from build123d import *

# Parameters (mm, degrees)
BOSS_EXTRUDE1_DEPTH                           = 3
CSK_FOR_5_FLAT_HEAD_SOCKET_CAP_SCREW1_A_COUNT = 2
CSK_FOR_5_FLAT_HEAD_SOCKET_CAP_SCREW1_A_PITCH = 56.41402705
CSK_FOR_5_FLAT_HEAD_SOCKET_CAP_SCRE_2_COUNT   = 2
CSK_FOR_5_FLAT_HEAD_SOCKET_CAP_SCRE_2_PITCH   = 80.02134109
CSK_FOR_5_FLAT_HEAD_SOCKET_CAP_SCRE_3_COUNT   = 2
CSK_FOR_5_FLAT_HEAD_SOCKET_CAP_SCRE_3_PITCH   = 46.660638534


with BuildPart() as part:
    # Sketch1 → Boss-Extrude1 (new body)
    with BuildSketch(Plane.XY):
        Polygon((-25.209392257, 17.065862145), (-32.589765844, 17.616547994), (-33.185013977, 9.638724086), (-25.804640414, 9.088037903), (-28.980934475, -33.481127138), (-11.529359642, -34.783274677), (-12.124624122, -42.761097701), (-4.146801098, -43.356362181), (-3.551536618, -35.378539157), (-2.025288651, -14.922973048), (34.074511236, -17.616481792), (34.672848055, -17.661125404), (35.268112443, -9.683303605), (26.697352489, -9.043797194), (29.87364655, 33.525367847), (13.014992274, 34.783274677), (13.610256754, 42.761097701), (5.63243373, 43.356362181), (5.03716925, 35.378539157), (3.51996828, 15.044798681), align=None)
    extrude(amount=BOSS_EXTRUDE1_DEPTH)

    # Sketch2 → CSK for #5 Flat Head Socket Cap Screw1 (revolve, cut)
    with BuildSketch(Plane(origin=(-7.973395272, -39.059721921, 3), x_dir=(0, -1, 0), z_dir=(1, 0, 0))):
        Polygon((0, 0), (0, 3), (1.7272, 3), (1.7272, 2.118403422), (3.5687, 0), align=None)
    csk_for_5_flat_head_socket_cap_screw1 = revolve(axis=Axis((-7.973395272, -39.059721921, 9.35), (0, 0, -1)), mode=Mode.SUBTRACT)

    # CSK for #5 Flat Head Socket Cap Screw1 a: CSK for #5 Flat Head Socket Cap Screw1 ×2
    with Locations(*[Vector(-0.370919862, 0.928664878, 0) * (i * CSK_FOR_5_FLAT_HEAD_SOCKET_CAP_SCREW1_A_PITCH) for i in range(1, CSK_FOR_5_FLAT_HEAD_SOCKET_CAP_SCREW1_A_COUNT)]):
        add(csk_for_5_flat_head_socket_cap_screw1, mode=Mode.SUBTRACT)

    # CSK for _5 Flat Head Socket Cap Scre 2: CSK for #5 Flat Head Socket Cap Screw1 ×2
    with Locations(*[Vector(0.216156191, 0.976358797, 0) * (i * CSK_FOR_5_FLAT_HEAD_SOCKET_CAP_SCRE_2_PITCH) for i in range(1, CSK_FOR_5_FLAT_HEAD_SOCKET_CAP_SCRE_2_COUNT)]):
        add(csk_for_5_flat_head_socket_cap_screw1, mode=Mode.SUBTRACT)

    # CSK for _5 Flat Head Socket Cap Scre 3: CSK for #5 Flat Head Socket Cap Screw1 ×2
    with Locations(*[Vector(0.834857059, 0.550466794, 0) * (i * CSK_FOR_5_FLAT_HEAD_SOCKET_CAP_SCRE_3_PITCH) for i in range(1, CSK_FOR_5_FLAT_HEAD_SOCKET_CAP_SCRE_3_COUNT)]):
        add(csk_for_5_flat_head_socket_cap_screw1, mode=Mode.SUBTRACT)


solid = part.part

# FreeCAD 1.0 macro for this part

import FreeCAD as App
import Part
import Sketcher

V = App.Vector
Q = App.Units.Quantity

doc = App.newDocument("Part")
body = doc.addObject("PartDesign::Body", "Body")

# Sketch on XY plane
sketch1 = body.newObject("Sketcher::SketchObject", "Sketch")
sketch1.AttachmentSupport = (doc.getObject("XY_Plane"), [""])
sketch1.MapMode = "FlatFace"
sketch1.addGeometry(Part.LineSegment(V(-25.209392, 17.065862, 0), V(-32.589766, 17.616548, 0)), False)
sketch1.addGeometry(Part.LineSegment(V(-32.589766, 17.616548, 0), V(-33.185014, 9.638724, 0)), False)
sketch1.addGeometry(Part.LineSegment(V(-33.185014, 9.638724, 0), V(-25.80464, 9.088038, 0)), False)
sketch1.addGeometry(Part.LineSegment(V(-25.80464, 9.088038, 0), V(-28.980934, -33.481127, 0)), False)
sketch1.addGeometry(Part.LineSegment(V(-28.980934, -33.481127, 0), V(-11.52936, -34.783275, 0)), False)
sketch1.addGeometry(Part.LineSegment(V(-11.52936, -34.783275, 0), V(-12.124624, -42.761098, 0)), False)
sketch1.addGeometry(Part.LineSegment(V(-12.124624, -42.761098, 0), V(-4.146801, -43.356362, 0)), False)
sketch1.addGeometry(Part.LineSegment(V(-4.146801, -43.356362, 0), V(-3.551537, -35.378539, 0)), False)
sketch1.addGeometry(Part.LineSegment(V(-3.551537, -35.378539, 0), V(-2.025289, -14.922973, 0)), False)
sketch1.addGeometry(Part.LineSegment(V(-2.025289, -14.922973, 0), V(34.074511, -17.616482, 0)), False)
sketch1.addGeometry(Part.LineSegment(V(34.074511, -17.616482, 0), V(34.672848, -17.661125, 0)), False)
sketch1.addGeometry(Part.LineSegment(V(34.672848, -17.661125, 0), V(35.268112, -9.683304, 0)), False)
sketch1.addGeometry(Part.LineSegment(V(35.268112, -9.683304, 0), V(26.697352, -9.043797, 0)), False)
sketch1.addGeometry(Part.LineSegment(V(26.697352, -9.043797, 0), V(29.873647, 33.525368, 0)), False)
sketch1.addGeometry(Part.LineSegment(V(29.873647, 33.525368, 0), V(13.014992, 34.783275, 0)), False)
sketch1.addGeometry(Part.LineSegment(V(13.014992, 34.783275, 0), V(13.610257, 42.761098, 0)), False)
sketch1.addGeometry(Part.LineSegment(V(13.610257, 42.761098, 0), V(5.632434, 43.356362, 0)), False)
sketch1.addGeometry(Part.LineSegment(V(5.632434, 43.356362, 0), V(5.037169, 35.378539, 0)), False)
sketch1.addGeometry(Part.LineSegment(V(5.037169, 35.378539, 0), V(3.519968, 15.044799, 0)), False)
sketch1.addGeometry(Part.LineSegment(V(3.519968, 15.044799, 0), V(-25.209392, 17.065862, 0)), False)
sketch1.addConstraint(Sketcher.Constraint("Coincident", 0, 2, 1, 1))
sketch1.addConstraint(Sketcher.Constraint("Coincident", 1, 2, 2, 1))
sketch1.addConstraint(Sketcher.Constraint("Coincident", 2, 2, 3, 1))
sketch1.addConstraint(Sketcher.Constraint("Coincident", 3, 2, 4, 1))
sketch1.addConstraint(Sketcher.Constraint("Coincident", 4, 2, 5, 1))
sketch1.addConstraint(Sketcher.Constraint("Coincident", 5, 2, 6, 1))
sketch1.addConstraint(Sketcher.Constraint("Coincident", 6, 2, 7, 1))
sketch1.addConstraint(Sketcher.Constraint("Coincident", 7, 2, 8, 1))
sketch1.addConstraint(Sketcher.Constraint("Coincident", 8, 2, 9, 1))
sketch1.addConstraint(Sketcher.Constraint("Coincident", 9, 2, 10, 1))
sketch1.addConstraint(Sketcher.Constraint("Coincident", 10, 2, 11, 1))
sketch1.addConstraint(Sketcher.Constraint("Coincident", 11, 2, 12, 1))
sketch1.addConstraint(Sketcher.Constraint("Coincident", 12, 2, 13, 1))
sketch1.addConstraint(Sketcher.Constraint("Coincident", 13, 2, 14, 1))
sketch1.addConstraint(Sketcher.Constraint("Coincident", 14, 2, 15, 1))
sketch1.addConstraint(Sketcher.Constraint("Coincident", 15, 2, 16, 1))
sketch1.addConstraint(Sketcher.Constraint("Coincident", 16, 2, 17, 1))
sketch1.addConstraint(Sketcher.Constraint("Coincident", 17, 2, 18, 1))
sketch1.addConstraint(Sketcher.Constraint("Coincident", 18, 2, 19, 1))
sketch1.addConstraint(Sketcher.Constraint("Coincident", 19, 2, 0, 1))
sketch1.addConstraint(Sketcher.Constraint("Distance", 1, Q("8 mm")))
sketch1.addConstraint(Sketcher.Constraint("Distance", 5, Q("8 mm")))
sketch1.addConstraint(Sketcher.Constraint("Distance", 6, Q("8 mm")))
sketch1.addConstraint(Sketcher.Constraint("Distance", 7, Q("8 mm")))
sketch1.addConstraint(Sketcher.Constraint("Distance", 11, Q("7.999999 mm")))
sketch1.addConstraint(Sketcher.Constraint("Distance", 15, Q("8 mm")))
sketch1.addConstraint(Sketcher.Constraint("Distance", 16, Q("8 mm")))
sketch1.addConstraint(Sketcher.Constraint("Distance", 17, Q("8 mm")))
sketch1.addConstraint(Sketcher.Constraint("Distance", 10, Q("0.6 mm")))
sketch1.addConstraint(Sketcher.Constraint("DistanceY", 4, 2, 1, 2, Q("44.421999 mm")))
sketch1.addConstraint(Sketcher.Constraint("Distance", 3, Q("42.6875 mm")))
sketch1.addConstraint(Sketcher.Constraint("Distance", 13, Q("42.6875 mm")))
sketch1.addConstraint(Sketcher.Constraint("DistanceX", 6, 2, -1, 1, Q("4.146801 mm")))
sketch1.addConstraint(Sketcher.Constraint("DistanceY", -1, 1, 18, 2, Q("15.044799 mm")))
sketch1.addConstraint(Sketcher.Constraint("DistanceY", 6, 2, 2, 2, Q("52.4444 mm")))
sketch1.addConstraint(Sketcher.Constraint("DistanceY", 4, 2, 8, 2, Q("19.860302 mm")))
sketch1.addConstraint(Sketcher.Constraint("DistanceX", 8, 2, 9, 2, Q("36.0998 mm")))
sketch1.addConstraint(Sketcher.Constraint("DistanceX", 9, 2, 11, 2, Q("1.193601 mm")))
sketch1.addConstraint(Sketcher.Constraint("DistanceX", 13, 2, 10, 2, Q("4.799202 mm")))
sketch1.addConstraint(Sketcher.Constraint("DistanceX", 0, 2, 16, 2, Q("38.2222 mm")))
sketch1.addConstraint(Sketcher.Constraint("DistanceY", 2, 2, 17, 2, Q("26.290501 mm")))
sketch1.addConstraint(Sketcher.Constraint("DistanceX", 18, 2, 17, 2, Q("1.517201 mm")))
sketch1.addConstraint(Sketcher.Constraint("DistanceY", 18, 2, 15, 2, Q("27.716299 mm")))
sketch1.addConstraint(Sketcher.Constraint("Distance", 0, Q("7.40089 mm")))
sketch1.addConstraint(Sketcher.Constraint("Distance", 2, Q("7.40089 mm")))
sketch1.addConstraint(Sketcher.Constraint("Distance", 14, Q("16.905518 mm")))
sketch1.addConstraint(Sketcher.Constraint("DistanceX", 2, 2, -1, 1, Q("25.80464 mm")))
sketch1.addConstraint(Sketcher.Constraint("DistanceX", 4, 2, -1, 1, Q("11.52936 mm")))
sketch1.addConstraint(Sketcher.Constraint("DistanceY", 7, 2, -1, 1, Q("35.378539 mm")))
sketch1.addConstraint(Sketcher.Constraint("DistanceX", 8, 2, -1, 1, Q("2.025289 mm")))
sketch1.addConstraint(Sketcher.Constraint("DistanceY", 9, 2, -1, 1, Q("17.616482 mm")))
sketch1.addConstraint(Sketcher.Constraint("DistanceX", -1, 1, 10, 2, Q("34.672848 mm")))
sketch1.addConstraint(Sketcher.Constraint("DistanceX", -1, 1, 17, 2, Q("5.037169 mm")))
sketch1.addConstraint(Sketcher.Constraint("DistanceY", -1, 1, 17, 2, Q("35.378539 mm")))
sketch1.addConstraint(Sketcher.Constraint("DistanceX", 1, 2, 0, 2, Q("0.595248 mm")))
sketch1.addConstraint(Sketcher.Constraint("DistanceY", 2, 2, 0, 2, Q("8.52851 mm")))
sketch1.addConstraint(Sketcher.Constraint("DistanceX", 1, 2, 3, 2, Q("4.20408 mm")))
sketch1.addConstraint(Sketcher.Constraint("DistanceX", 12, 2, 11, 2, Q("8.57076 mm")))
sketch1.addConstraint(Sketcher.Constraint("DistanceY", 10, 2, 12, 2, Q("8.617328 mm")))
sketch1.addConstraint(Sketcher.Constraint("DistanceX", 2, 2, 19, 2, Q("0.595248 mm")))
pad1 = body.newObject("PartDesign::Pad", "Pad")
pad1.Profile = sketch1
pad1.Length = 3

# Sketch on YZ plane
sketch2 = body.newObject("Sketcher::SketchObject", "Sketch001")
sketch2.AttachmentSupport = (doc.getObject("YZ_Plane"), [""])
sketch2.MapMode = "FlatFace"
sketch2.AttachmentOffset = App.Placement(V(0, 0, -7.973395), App.Rotation())
sketch2.addGeometry(Part.LineSegment(V(-39.1, 0, 0), V(-39.1, 3, 0)), False)
sketch2.addGeometry(Part.LineSegment(V(-39.1, 3, 0), V(-42.6, 3, 0)), False)
sketch2.addGeometry(Part.LineSegment(V(-42.6, 3, 0), V(-40.8, 0.9, 0)), False)
sketch2.addGeometry(Part.LineSegment(V(-40.8, 0.9, 0), V(-40.8, 0, 0)), False)
sketch2.addGeometry(Part.LineSegment(V(-40.8, 0, 0), V(-39.1, 0, 0)), False)
sketch2.addGeometry(Part.LineSegment(V(-39.1, 3, 0), V(-39.1, 0, 0)), True)  # axis
sketch2.addConstraint(Sketcher.Constraint("Coincident", 0, 2, 1, 1))
sketch2.addConstraint(Sketcher.Constraint("Coincident", 1, 2, 2, 1))
sketch2.addConstraint(Sketcher.Constraint("Coincident", 2, 2, 3, 1))
sketch2.addConstraint(Sketcher.Constraint("Coincident", 3, 2, 4, 1))
sketch2.addConstraint(Sketcher.Constraint("Coincident", 4, 2, 0, 1))
sketch2.addConstraint(Sketcher.Constraint("Vertical", 0))
sketch2.addConstraint(Sketcher.Constraint("Horizontal", 1))
sketch2.addConstraint(Sketcher.Constraint("Vertical", 3))
sketch2.addConstraint(Sketcher.Constraint("Horizontal", 4))
sketch2.addConstraint(Sketcher.Constraint("Vertical", 5))
sketch2.addConstraint(Sketcher.Constraint("Coincident", 5, 1, 0, 2))
sketch2.addConstraint(Sketcher.Constraint("PointOnObject", 3, 2, -1))
sketch2.addConstraint(Sketcher.Constraint("PointOnObject", 5, 2, -1))
sketch2.addConstraint(Sketcher.Constraint("DistanceY", 0, 1, 0, 2, Q("3 mm")))
sketch2.addConstraint(Sketcher.Constraint("Angle", 2, Q("-49 deg")))
sketch2.addConstraint(Sketcher.Constraint("DistanceX", 1, 2, 1, 1, Q("3.5687 mm")))
sketch2.addConstraint(Sketcher.Constraint("DistanceX", 4, 1, 4, 2, Q("1.7272 mm")))
sketch2.addConstraint(Sketcher.Constraint("DistanceX", 0, 2, -1, 1, Q("39.059722 mm")))
groove = body.newObject("PartDesign::Groove", "Groove")
groove.Profile = sketch2
groove.ReferenceAxis = (sketch2, ["Axis0"])
groove.Angle = 360
doc.recompute()

datumline = body.newObject("PartDesign::Line", "DatumLine")
datumline.Placement = App.Placement(V(0, 0, 0), App.Rotation(V(0, 0, 1), V(-0.370919862, 0.928664878, 0)))
linearpattern = body.newObject("PartDesign::LinearPattern", "LinearPattern")
linearpattern.Originals = [groove]
linearpattern.Direction = (datumline, [""])
linearpattern.Mode = "offset"
linearpattern.Offset = 56.414027
linearpattern.Occurrences = 2
body.Tip = linearpattern
doc.recompute()

datumline2 = body.newObject("PartDesign::Line", "DatumLine001")
datumline2.Placement = App.Placement(V(0, 0, 0), App.Rotation(V(0, 0, 1), V(0.216156191, 0.976358797, 0)))
linearpattern2 = body.newObject("PartDesign::LinearPattern", "LinearPattern001")
linearpattern2.Originals = [groove]
linearpattern2.Direction = (datumline2, [""])
linearpattern2.Mode = "offset"
linearpattern2.Offset = 80.021341
linearpattern2.Occurrences = 2
body.Tip = linearpattern2
doc.recompute()

datumline3 = body.newObject("PartDesign::Line", "DatumLine002")
datumline3.Placement = App.Placement(V(0, 0, 0), App.Rotation(V(0, 0, 1), V(0.834857059, 0.550466794, 0)))
linearpattern3 = body.newObject("PartDesign::LinearPattern", "LinearPattern002")
linearpattern3.Originals = [groove]
linearpattern3.Direction = (datumline3, [""])
linearpattern3.Mode = "offset"
linearpattern3.Offset = 46.660639
linearpattern3.Occurrences = 2
body.Tip = linearpattern3

doc.recompute()
